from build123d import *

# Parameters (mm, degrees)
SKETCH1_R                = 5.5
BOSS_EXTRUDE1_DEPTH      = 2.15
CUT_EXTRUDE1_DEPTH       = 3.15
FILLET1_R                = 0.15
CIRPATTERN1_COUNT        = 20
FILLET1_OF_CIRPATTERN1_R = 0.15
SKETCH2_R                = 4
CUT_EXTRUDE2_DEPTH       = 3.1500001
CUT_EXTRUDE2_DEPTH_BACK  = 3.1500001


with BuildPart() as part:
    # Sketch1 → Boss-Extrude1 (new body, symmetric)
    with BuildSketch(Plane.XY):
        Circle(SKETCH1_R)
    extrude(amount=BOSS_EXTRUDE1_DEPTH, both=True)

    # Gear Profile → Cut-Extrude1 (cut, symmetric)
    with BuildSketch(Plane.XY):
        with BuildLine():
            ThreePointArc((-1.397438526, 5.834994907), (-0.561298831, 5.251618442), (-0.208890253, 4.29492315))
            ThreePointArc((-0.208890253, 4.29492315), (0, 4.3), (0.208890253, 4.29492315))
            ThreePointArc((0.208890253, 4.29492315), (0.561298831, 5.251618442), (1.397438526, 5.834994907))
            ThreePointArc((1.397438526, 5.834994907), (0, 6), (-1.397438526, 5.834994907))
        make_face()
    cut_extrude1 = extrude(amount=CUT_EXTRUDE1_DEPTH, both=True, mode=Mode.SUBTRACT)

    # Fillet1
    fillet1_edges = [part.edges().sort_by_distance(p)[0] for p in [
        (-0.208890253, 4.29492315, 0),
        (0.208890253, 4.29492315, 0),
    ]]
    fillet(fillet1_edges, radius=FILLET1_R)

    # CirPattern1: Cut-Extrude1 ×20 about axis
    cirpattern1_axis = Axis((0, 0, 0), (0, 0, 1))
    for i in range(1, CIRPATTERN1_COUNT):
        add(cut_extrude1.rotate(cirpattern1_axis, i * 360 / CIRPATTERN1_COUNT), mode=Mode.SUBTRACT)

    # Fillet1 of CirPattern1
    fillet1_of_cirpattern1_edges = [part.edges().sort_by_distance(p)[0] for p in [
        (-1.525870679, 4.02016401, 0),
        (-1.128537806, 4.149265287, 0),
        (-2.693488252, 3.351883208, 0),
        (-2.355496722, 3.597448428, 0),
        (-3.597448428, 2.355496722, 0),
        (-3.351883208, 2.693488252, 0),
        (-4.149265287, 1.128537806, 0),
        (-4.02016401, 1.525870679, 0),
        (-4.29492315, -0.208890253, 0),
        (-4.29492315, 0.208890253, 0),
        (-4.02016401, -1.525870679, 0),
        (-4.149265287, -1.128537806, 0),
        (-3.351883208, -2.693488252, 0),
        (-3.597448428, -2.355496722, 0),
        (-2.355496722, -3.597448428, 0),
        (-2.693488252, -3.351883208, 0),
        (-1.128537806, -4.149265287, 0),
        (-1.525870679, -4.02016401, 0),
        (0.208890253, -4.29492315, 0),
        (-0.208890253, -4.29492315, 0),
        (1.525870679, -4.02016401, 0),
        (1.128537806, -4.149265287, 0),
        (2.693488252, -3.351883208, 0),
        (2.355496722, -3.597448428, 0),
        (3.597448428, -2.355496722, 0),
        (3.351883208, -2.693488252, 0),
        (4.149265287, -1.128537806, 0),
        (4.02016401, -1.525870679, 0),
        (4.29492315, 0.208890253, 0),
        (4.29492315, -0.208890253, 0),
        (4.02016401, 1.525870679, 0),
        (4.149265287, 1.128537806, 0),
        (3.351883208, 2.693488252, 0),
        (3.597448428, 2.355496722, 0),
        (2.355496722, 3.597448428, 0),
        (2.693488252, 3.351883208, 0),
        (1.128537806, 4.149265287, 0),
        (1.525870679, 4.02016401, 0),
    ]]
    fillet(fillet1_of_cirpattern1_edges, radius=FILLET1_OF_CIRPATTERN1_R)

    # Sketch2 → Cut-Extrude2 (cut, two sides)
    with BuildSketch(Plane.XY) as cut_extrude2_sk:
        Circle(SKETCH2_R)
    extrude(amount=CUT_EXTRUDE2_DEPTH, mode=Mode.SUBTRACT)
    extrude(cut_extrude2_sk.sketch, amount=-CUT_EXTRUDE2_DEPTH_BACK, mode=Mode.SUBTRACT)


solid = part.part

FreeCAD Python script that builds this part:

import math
import FreeCAD as App
import Part
import Sketcher
from FreeCAD import Vector
Q = App.Units.Quantity


def edges_at(feature, points):
    """Names of the edges that pass closest to the given points."""
    edges = feature.Shape.Edges
    near = lambda p: min(range(len(edges)), key=lambda i: edges[i].distToShape(Part.Vertex(*p))[0])
    return sorted({f"Edge{near(p) + 1}" for p in points})

doc = App.newDocument("Part")
body = doc.addObject("PartDesign::Body", "Body")

sketch1 = body.newObject("Sketcher::SketchObject", "Sketch")
sketch1.AttachmentSupport = (doc.getObject("XY_Plane"), [""])
sketch1.MapMode = "FlatFace"
sketch1.addGeometry(Part.Circle(Vector(0, 0, 0), Vector(0, 0, 1), 6), False)
sketch1.addConstraint(Sketcher.Constraint("Coincident", 0, 3, -1, 1))
sketch1.addConstraint(Sketcher.Constraint("Diameter", 0, Q("11 mm")))
pad1 = body.newObject("PartDesign::Pad", "Pad")
pad1.Profile = sketch1
pad1.Length = 4.3
pad1.Midplane = True

sketch2 = body.newObject("Sketcher::SketchObject", "Sketch001")
sketch2.AttachmentSupport = (doc.getObject("XY_Plane"), [""])
sketch2.MapMode = "FlatFace"
sketch2.addGeometry(Part.ArcOfCircle(Part.Circle(Vector(-1.91, 4.21, 0), Vector(0, 0, 1), 1.7), math.radians(3), math.radians(73)), False)
sketch2.addGeometry(Part.ArcOfCircle(Part.Circle(Vector(0, 0, 0), Vector(0, 0, 1), 4.3), math.radians(87.22), math.radians(92.78)), False)
sketch2.addGeometry(Part.ArcOfCircle(Part.Circle(Vector(1.91, 4.21, 0), Vector(0, 0, 1), 1.7), math.radians(107), math.radians(177)), False)
sketch2.addGeometry(Part.ArcOfCircle(Part.Circle(Vector(0, 0, 0), Vector(0, 0, 1), 6), math.radians(77), math.radians(103)), False)
sketch2.addConstraint(Sketcher.Constraint("Coincident", 0, 1, 1, 2))
sketch2.addConstraint(Sketcher.Constraint("Coincident", 1, 1, 2, 2))
sketch2.addConstraint(Sketcher.Constraint("Coincident", 2, 1, 3, 1))
sketch2.addConstraint(Sketcher.Constraint("Coincident", 3, 2, 0, 2))
sketch2.addConstraint(Sketcher.Constraint("Coincident", 1, 3, -1, 1))
sketch2.addConstraint(Sketcher.Constraint("Coincident", 3, 3, -1, 1))
sketch2.addConstraint(Sketcher.Constraint("Equal", 0, 2))
sketch2.addConstraint(Sketcher.Constraint("Symmetric", 0, 3, 2, 3, -2))
sketch2.addConstraint(Sketcher.Constraint("Radius", 3, Q("6 mm")))
sketch2.addConstraint(Sketcher.Constraint("Radius", 1, Q("4.3 mm")))
sketch2.addConstraint(Sketcher.Constraint("Radius", 0, Q("1.701145 mm")))
sketch2.addConstraint(Sketcher.Constraint("DistanceX", 0, 1, -1, 1, Q("0.20889 mm")))
sketch2.addConstraint(Sketcher.Constraint("DistanceX", -1, 1, 2, 1, Q("1.397439 mm")))
pocket1 = body.newObject("PartDesign::Pocket", "Pocket")
pocket1.Profile = sketch2
pocket1.Length = 6.3
pocket1.Midplane = True
doc.recompute()

fillet = body.newObject("PartDesign::Fillet", "Fillet")
fillet.Base = (pocket1, edges_at(pocket1, [(-0.209, 4.295, 0), (0.209, 4.295, 0)]))
fillet.Radius = 0.15
doc.recompute()

polarpattern = body.newObject("PartDesign::PolarPattern", "PolarPattern")
polarpattern.Originals = [pocket1]
polarpattern.Axis = (doc.getObject("Z_Axis"), [""])
polarpattern.Angle = 360
polarpattern.Occurrences = 20
body.Tip = polarpattern
doc.recompute()

fillet2 = body.newObject("PartDesign::Fillet", "Fillet001")
fillet2.Base = (polarpattern, edges_at(polarpattern, [
    (-1.526, 4.02, 0),
    (-1.129, 4.149, 0),
    (-2.693, 3.352, 0),
    (-2.355, 3.597, 0),
    (-3.597, 2.355, 0),
    (-3.352, 2.693, 0),
    (-4.149, 1.129, 0),
    (-4.02, 1.526, 0),
    (-4.295, -0.209, 0),
    (-4.295, 0.209, 0),
    (-4.02, -1.526, 0),
    (-4.149, -1.129, 0),
    (-3.352, -2.693, 0),
    (-3.597, -2.355, 0),
    (-2.355, -3.597, 0),
    (-2.693, -3.352, 0),
    (-1.129, -4.149, 0),
    (-1.526, -4.02, 0),
    (0.209, -4.295, 0),
    (-0.209, -4.295, 0),
    (1.526, -4.02, 0),
    (1.129, -4.149, 0),
    (2.693, -3.352, 0),
    (2.355, -3.597, 0),
    (3.597, -2.355, 0),
    (3.352, -2.693, 0),
    (4.149, -1.129, 0),
    (4.02, -1.526, 0),
    (4.295, 0.209, 0),
    (4.295, -0.209, 0),
    (4.02, 1.526, 0),
    (4.149, 1.129, 0),
    (3.352, 2.693, 0),
    (3.597, 2.355, 0),
    (2.355, 3.597, 0),
    (2.693, 3.352, 0),
    (1.129, 4.149, 0),
    (1.526, 4.02, 0),
]))
fillet2.Radius = 0.15

sketch3 = body.newObject("Sketcher::SketchObject", "Sketch002")
sketch3.AttachmentSupport = (doc.getObject("XY_Plane"), [""])
sketch3.MapMode = "FlatFace"
sketch3.addGeometry(Part.Circle(Vector(0, 0, 0), Vector(0, 0, 1), 4), False)
sketch3.addConstraint(Sketcher.Constraint("Coincident", 0, 3, -1, 1))
sketch3.addConstraint(Sketcher.Constraint("Diameter", 0, Q("8 mm")))
pocket2 = body.newObject("PartDesign::Pocket", "Pocket001")
pocket2.Profile = sketch3
pocket2.Type = "ThroughAll"
pocket2.Midplane = True

doc.recompute()
